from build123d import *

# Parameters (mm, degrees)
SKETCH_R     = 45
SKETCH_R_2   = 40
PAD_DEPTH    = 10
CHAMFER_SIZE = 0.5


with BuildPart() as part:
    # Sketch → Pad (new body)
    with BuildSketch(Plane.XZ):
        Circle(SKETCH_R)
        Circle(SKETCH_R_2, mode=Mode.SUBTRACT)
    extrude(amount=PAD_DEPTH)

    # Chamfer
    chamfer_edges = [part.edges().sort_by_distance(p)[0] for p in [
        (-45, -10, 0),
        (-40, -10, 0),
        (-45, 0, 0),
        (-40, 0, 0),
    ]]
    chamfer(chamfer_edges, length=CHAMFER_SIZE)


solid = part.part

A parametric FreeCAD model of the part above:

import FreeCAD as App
import Part
import Sketcher
from FreeCAD import Vector
Q = App.Units.Quantity


def edges_at(feature, points):
    """Names of the edges that pass closest to the given points."""
    edges = feature.Shape.Edges
    near = lambda p: min(range(len(edges)), key=lambda i: edges[i].distToShape(Part.Vertex(*p))[0])
    return sorted({f"Edge{near(p) + 1}" for p in points})

doc = App.newDocument("Part")
body = doc.addObject("PartDesign::Body", "Body")

sketch1 = body.newObject("Sketcher::SketchObject", "Sketch")
sketch1.AttachmentSupport = (doc.getObject("XZ_Plane"), [""])
sketch1.MapMode = "FlatFace"
sketch1.addGeometry(Part.Circle(Vector(0, 0, 0), Vector(0, 0, 1), 45), False)
sketch1.addGeometry(Part.Circle(Vector(0, 0, 0), Vector(0, 0, 1), 40), False)
sketch1.addConstraint(Sketcher.Constraint("Coincident", 0, 3, -1, 1))
sketch1.addConstraint(Sketcher.Constraint("Coincident", 1, 3, -1, 1))
sketch1.addConstraint(Sketcher.Constraint("Diameter", 0, Q("90 mm")))
sketch1.addConstraint(Sketcher.Constraint("Diameter", 1, Q("80 mm")))
pad1 = body.newObject("PartDesign::Pad", "Pad")
pad1.Profile = sketch1
pad1.Length = 10
doc.recompute()

chamfer = body.newObject("PartDesign::Chamfer", "Chamfer")
chamfer.Base = (pad1, edges_at(pad1, [
    (-45, -10, 0),
    (-40, -10, 0),
    (-45, 0, 0),
    (-40, 0, 0),
]))
chamfer.Size = 0.5

doc.recompute()
